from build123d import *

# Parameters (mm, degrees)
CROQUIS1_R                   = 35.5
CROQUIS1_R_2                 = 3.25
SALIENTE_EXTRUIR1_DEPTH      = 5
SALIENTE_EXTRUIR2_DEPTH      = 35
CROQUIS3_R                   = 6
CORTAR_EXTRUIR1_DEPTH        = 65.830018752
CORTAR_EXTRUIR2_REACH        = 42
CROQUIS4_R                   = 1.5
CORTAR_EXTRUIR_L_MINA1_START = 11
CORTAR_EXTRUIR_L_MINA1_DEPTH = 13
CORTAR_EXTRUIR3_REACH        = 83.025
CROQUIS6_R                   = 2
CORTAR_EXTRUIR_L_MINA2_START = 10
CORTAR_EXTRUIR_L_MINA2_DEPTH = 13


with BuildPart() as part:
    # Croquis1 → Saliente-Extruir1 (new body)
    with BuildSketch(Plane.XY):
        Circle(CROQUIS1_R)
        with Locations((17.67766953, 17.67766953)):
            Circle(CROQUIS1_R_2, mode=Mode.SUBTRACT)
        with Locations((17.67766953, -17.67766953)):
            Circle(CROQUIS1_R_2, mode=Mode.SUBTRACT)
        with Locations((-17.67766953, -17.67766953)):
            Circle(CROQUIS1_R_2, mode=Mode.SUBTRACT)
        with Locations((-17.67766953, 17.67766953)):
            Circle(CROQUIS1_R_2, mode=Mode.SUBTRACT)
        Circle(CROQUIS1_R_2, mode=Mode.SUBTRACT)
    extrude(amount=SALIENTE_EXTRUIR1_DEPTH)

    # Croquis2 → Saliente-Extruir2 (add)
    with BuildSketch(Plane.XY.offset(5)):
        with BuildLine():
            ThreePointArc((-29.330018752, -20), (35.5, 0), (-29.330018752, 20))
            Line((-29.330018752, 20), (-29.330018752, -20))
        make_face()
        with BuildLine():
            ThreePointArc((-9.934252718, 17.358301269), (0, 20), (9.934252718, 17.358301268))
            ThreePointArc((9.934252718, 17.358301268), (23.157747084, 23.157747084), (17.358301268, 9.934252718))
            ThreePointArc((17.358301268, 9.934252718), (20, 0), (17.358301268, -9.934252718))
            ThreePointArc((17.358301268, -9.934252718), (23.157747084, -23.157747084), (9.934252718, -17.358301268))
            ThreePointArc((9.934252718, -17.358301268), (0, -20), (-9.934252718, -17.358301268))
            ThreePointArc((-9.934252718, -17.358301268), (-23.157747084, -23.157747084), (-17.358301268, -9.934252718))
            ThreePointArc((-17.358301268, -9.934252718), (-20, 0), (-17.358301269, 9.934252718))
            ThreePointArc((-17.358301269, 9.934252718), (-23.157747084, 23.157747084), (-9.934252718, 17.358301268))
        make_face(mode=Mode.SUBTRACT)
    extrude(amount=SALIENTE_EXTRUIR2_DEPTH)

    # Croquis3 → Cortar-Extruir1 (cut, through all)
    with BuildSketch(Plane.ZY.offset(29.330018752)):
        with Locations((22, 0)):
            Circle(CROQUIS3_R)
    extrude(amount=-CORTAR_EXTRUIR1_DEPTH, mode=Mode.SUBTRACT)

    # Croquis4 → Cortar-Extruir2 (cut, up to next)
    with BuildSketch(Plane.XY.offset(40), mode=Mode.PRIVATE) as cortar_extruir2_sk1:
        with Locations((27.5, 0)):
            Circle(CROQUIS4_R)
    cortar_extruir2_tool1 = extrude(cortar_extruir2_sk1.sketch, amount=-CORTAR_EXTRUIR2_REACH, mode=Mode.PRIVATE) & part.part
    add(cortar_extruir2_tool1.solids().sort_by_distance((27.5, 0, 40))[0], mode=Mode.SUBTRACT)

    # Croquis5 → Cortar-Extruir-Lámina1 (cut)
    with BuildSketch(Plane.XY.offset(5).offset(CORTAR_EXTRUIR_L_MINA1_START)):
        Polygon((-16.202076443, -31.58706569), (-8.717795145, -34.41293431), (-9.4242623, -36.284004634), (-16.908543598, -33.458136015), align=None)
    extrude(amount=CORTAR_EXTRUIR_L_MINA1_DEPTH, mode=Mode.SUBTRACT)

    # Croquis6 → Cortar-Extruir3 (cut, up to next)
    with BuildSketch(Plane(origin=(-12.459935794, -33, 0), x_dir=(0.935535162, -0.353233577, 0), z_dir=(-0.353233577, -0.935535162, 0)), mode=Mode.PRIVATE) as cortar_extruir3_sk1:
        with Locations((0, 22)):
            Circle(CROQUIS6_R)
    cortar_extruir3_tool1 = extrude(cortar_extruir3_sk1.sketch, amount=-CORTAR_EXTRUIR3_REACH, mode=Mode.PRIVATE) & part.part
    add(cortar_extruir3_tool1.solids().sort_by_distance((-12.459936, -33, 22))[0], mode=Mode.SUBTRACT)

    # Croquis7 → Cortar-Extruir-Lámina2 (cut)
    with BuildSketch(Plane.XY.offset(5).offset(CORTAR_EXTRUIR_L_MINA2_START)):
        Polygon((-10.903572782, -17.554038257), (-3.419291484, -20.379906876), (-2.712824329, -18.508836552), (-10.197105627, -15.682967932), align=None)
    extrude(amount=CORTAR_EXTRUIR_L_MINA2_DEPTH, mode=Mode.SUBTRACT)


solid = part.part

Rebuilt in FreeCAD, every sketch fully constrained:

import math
import FreeCAD as App
import Part
import Sketcher
from FreeCAD import Vector
Q = App.Units.Quantity

doc = App.newDocument("Part")
params = doc.addObject("Spreadsheet::Sheet", "Params")
for row, (alias, value) in enumerate([
    ("sketch1_diameter", "71 mm"),
    ("sketch1_diameter2", "6.5 mm"),
    ("pad1_length", "5 mm"),
    ("sketch2_radius", "20 mm"),
    ("sketch2_radius2", "35.5 mm"),
    ("sketch2_height", "40 mm"),
    ("sketch2_radius3", "7.75 mm"),
    ("pad2_length", "35 mm"),
    ("sketch3_diameter", "12 mm"),
    ("sketch4_diameter", "3 mm"),
    ("sketch5_length", "8 mm"),
    ("sketch5_length2", "2 mm"),
    ("pocket3_length", "13 mm"),
    ("sketch6_diameter", "4 mm"),
    ("sketch7_length", "8 mm"),
    ("sketch7_length2", "2 mm"),
    ("pocket5_length", "13 mm"),
], start=1):
    params.set(f"A{row}", alias)
    params.set(f"B{row}", "=" + value)
    params.setAlias(f"B{row}", alias)

body = doc.addObject("PartDesign::Body", "Body")

# Sketch on XY plane
sketch1 = body.newObject("Sketcher::SketchObject", "Sketch")
sketch1.AttachmentSupport = (doc.getObject("XY_Plane"), [""])
sketch1.MapMode = "FlatFace"
sketch1.addGeometry([
    Part.Circle(Vector(0, 0, 0), Vector(0, 0, 1), 35.5),  # 0
    Part.Circle(Vector(-17.7, -17.7, 0), Vector(0, 0, 1), 3.2),  # 1
    Part.Circle(Vector(17.7, -17.7, 0), Vector(0, 0, 1), 3.2),  # 2
    Part.Circle(Vector(-17.7, 17.7, 0), Vector(0, 0, 1), 3.2),  # 3
    Part.Circle(Vector(0, 0, 0), Vector(0, 0, 1), 3.2),  # 4
    Part.Circle(Vector(17.7, 17.7, 0), Vector(0, 0, 1), 3.2),  # 5
], False)
sketch1.addConstraint([
    Sketcher.Constraint("Coincident", 0, 3, -1, 1),
    Sketcher.Constraint("Coincident", 4, 3, -1, 1),
    Sketcher.Constraint("Equal", 1, 2),
    Sketcher.Constraint("Equal", 2, 3),
    Sketcher.Constraint("Equal", 3, 4),
    Sketcher.Constraint("Equal", 4, 5),
    Sketcher.Constraint("Symmetric", 2, 3, 3, 3, -1, 1),
    Sketcher.Constraint("Symmetric", 1, 3, 5, 3, -1, 1),
    Sketcher.Constraint("Symmetric", 1, 3, 2, 3, -2),
    Sketcher.Constraint("Diameter", 0, Q("71 mm")),
    Sketcher.Constraint("Diameter", 1, Q("6.5 mm")),
    Sketcher.Constraint("DistanceX", 1, 3, -1, 1, Q("17.67767 mm")),
    Sketcher.Constraint("DistanceY", 1, 3, -1, 1, Q("17.67767 mm")),
])
sketch1.setExpression("Constraints[9]", "Params.sketch1_diameter")
sketch1.setExpression("Constraints[10]", "Params.sketch1_diameter2")
pad1 = body.newObject("PartDesign::Pad", "Pad")
pad1.Profile = sketch1
pad1.setExpression("Length", "Params.pad1_length")

# Sketch on XY plane
sketch2 = body.newObject("Sketcher::SketchObject", "Sketch001")
sketch2.AttachmentSupport = (doc.getObject("XY_Plane"), [""])
sketch2.MapMode = "FlatFace"
sketch2.AttachmentOffset = App.Placement(Vector(0, 0, 5), App.Rotation())
sketch2.addGeometry([
    Part.ArcOfCircle(Part.Circle(Vector(0, 0, 0), Vector(0, 0, 1), 36), math.radians(-146), math.radians(146)),  # 0
    Part.LineSegment(Vector(-29, 20, 0), Vector(-29, -20, 0)),  # 1
    Part.ArcOfCircle(Part.Circle(Vector(-18, 18, 0), Vector(0, 0, 1), 8), math.radians(-2), math.radians(272)),  # 2
    Part.ArcOfCircle(Part.Circle(Vector(0, 0, 0), Vector(0, 0, 1), 20), math.radians(60), math.radians(120)),  # 3
    Part.ArcOfCircle(Part.Circle(Vector(18, 18, 0), Vector(0, 0, 1), 8), math.radians(-92), math.radians(182)),  # 4
    Part.ArcOfCircle(Part.Circle(Vector(0, 0, 0), Vector(0, 0, 1), 20), math.radians(-30), math.radians(30)),  # 5
    Part.ArcOfCircle(Part.Circle(Vector(18, -18, 0), Vector(0, 0, 1), 8), math.radians(178), math.radians(452)),  # 6
    Part.ArcOfCircle(Part.Circle(Vector(0, 0, 0), Vector(0, 0, 1), 20), math.radians(-120), math.radians(-60)),  # 7
    Part.ArcOfCircle(Part.Circle(Vector(-18, -18, 0), Vector(0, 0, 1), 8), math.radians(88), math.radians(362)),  # 8
    Part.ArcOfCircle(Part.Circle(Vector(0, 0, 0), Vector(0, 0, 1), 20), math.radians(150), math.radians(210)),  # 9
], False)
sketch2.addConstraint([
    Sketcher.Constraint("Coincident", 0, 1, 1, 2),
    Sketcher.Constraint("Coincident", 1, 1, 0, 2),
    Sketcher.Constraint("Coincident", 2, 1, 3, 2),
    Sketcher.Constraint("Coincident", 3, 1, 4, 2),
    Sketcher.Constraint("Coincident", 4, 1, 5, 2),
    Sketcher.Constraint("Coincident", 5, 1, 6, 2),
    Sketcher.Constraint("Coincident", 6, 1, 7, 2),
    Sketcher.Constraint("Coincident", 7, 1, 8, 2),
    Sketcher.Constraint("Coincident", 8, 1, 9, 2),
    Sketcher.Constraint("Coincident", 9, 1, 2, 2),
    Sketcher.Constraint("Vertical", 1),
    Sketcher.Constraint("Coincident", 0, 3, -1, 1),
    Sketcher.Constraint("Coincident", 3, 3, -1, 1),
    Sketcher.Constraint("Coincident", 5, 3, -1, 1),
    Sketcher.Constraint("Coincident", 7, 3, -1, 1),
    Sketcher.Constraint("Coincident", 9, 3, -1, 1),
    Sketcher.Constraint("Equal", 2, 4),
    Sketcher.Constraint("Equal", 3, 5),
    Sketcher.Constraint("Equal", 4, 6),
    Sketcher.Constraint("Equal", 5, 7),
    Sketcher.Constraint("Equal", 6, 8),
    Sketcher.Constraint("Equal", 7, 9),
    Sketcher.Constraint("Symmetric", 2, 3, 6, 3, -1, 1),
    Sketcher.Constraint("Symmetric", 4, 3, 8, 3, -1, 1),
    Sketcher.Constraint("Symmetric", 2, 3, 4, 3, -2),
    Sketcher.Constraint("Radius", 3, Q("20 mm")),
    Sketcher.Constraint("Radius", 0, Q("35.5 mm")),
    Sketcher.Constraint("DistanceY", 1, 2, 1, 1, Q("40 mm")),
    Sketcher.Constraint("Radius", 2, Q("7.75 mm")),
    Sketcher.Constraint("DistanceY", -1, 1, 2, 1, Q("17.358301 mm")),
    Sketcher.Constraint("DistanceX", -1, 1, 4, 1, Q("17.358301 mm")),
])
sketch2.setExpression("Constraints[25]", "Params.sketch2_radius")
sketch2.setExpression("Constraints[26]", "Params.sketch2_radius2")
sketch2.setExpression("Constraints[27]", "Params.sketch2_height")
sketch2.setExpression("Constraints[28]", "Params.sketch2_radius3")
pad2 = body.newObject("PartDesign::Pad", "Pad001")
pad2.Profile = sketch2
pad2.setExpression("Length", "Params.pad2_length")

# Sketch on YZ plane
sketch3 = body.newObject("Sketcher::SketchObject", "Sketch002")
sketch3.AttachmentSupport = (doc.getObject("YZ_Plane"), [""])
sketch3.MapMode = "FlatFace"
sketch3.AttachmentOffset = App.Placement(Vector(0, 0, -29.330019), App.Rotation())
sketch3.addGeometry(Part.Circle(Vector(0, 22, 0), Vector(0, 0, 1), 6), False)
sketch3.addConstraint([
    Sketcher.Constraint("PointOnObject", 0, 3, -2),
    Sketcher.Constraint("Diameter", 0, Q("12 mm")),
    Sketcher.Constraint("DistanceY", -1, 1, 0, 3, Q("22 mm")),
])
sketch3.setExpression("Constraints[1]", "Params.sketch3_diameter")
pocket1 = body.newObject("PartDesign::Pocket", "Pocket")
pocket1.Profile = sketch3
pocket1.Type = "ThroughAll"
pocket1.Reversed = True

# Sketch on XY plane
sketch4 = body.newObject("Sketcher::SketchObject", "Sketch003")
sketch4.AttachmentSupport = (doc.getObject("XY_Plane"), [""])
sketch4.MapMode = "FlatFace"
sketch4.AttachmentOffset = App.Placement(Vector(0, 0, 40), App.Rotation())
sketch4.addGeometry(Part.Circle(Vector(27.5, 0, 0), Vector(0, 0, 1), 1.5), False)
sketch4.addConstraint([
    Sketcher.Constraint("PointOnObject", 0, 3, -1),
    Sketcher.Constraint("Diameter", 0, Q("3 mm")),
    Sketcher.Constraint("DistanceX", -1, 1, 0, 3, Q("27.5 mm")),
])
sketch4.setExpression("Constraints[1]", "Params.sketch4_diameter")
pocket2 = body.newObject("PartDesign::Pocket", "Pocket001")
pocket2.Profile = sketch4
pocket2.Type = "UpToFirst"

# Sketch on XY plane
sketch5 = body.newObject("Sketcher::SketchObject", "Sketch004")
sketch5.AttachmentSupport = (doc.getObject("XY_Plane"), [""])
sketch5.MapMode = "FlatFace"
sketch5.AttachmentOffset = App.Placement(Vector(0, 0, 16), App.Rotation())
sketch5.addGeometry([
    Part.LineSegment(Vector(-8.7, -34.4, 0), Vector(-16.2, -31.6, 0)),
    Part.LineSegment(Vector(-16.2, -31.6, 0), Vector(-16.9, -33.5, 0)),
    Part.LineSegment(Vector(-16.9, -33.5, 0), Vector(-9.4, -36.3, 0)),
    Part.LineSegment(Vector(-9.4, -36.3, 0), Vector(-8.7, -34.4, 0)),
], False)
sketch5.addConstraint([
    Sketcher.Constraint("Coincident", 0, 2, 1, 1),
    Sketcher.Constraint("Coincident", 1, 2, 2, 1),
    Sketcher.Constraint("Coincident", 2, 2, 3, 1),
    Sketcher.Constraint("Coincident", 3, 2, 0, 1),
    Sketcher.Constraint("Perpendicular", 0, 1),
    Sketcher.Constraint("Perpendicular", 1, 2),
    Sketcher.Constraint("Perpendicular", 2, 3),
    Sketcher.Constraint("Distance", 0, Q("8 mm")),
    Sketcher.Constraint("Distance", 1, Q("2 mm")),
    Sketcher.Constraint("DistanceY", 3, 2, 1, 2, Q("0.954798 mm")),
    Sketcher.Constraint("DistanceX", 0, 2, -1, 1, Q("16.202076 mm")),
    Sketcher.Constraint("DistanceY", 0, 2, -1, 1, Q("31.587066 mm")),
])
sketch5.setExpression("Constraints[7]", "Params.sketch5_length")
sketch5.setExpression("Constraints[8]", "Params.sketch5_length2")
pocket3 = body.newObject("PartDesign::Pocket", "Pocket002")
pocket3.Profile = sketch5
pocket3.setExpression("Length", "Params.pocket3_length")
pocket3.Reversed = True

# Sketch on an angled plane
sketch6 = body.newObject("Sketcher::SketchObject", "Sketch005")
sketch6.Placement = App.Placement(Vector(-12.459936, -33, 0), App.Rotation(Vector(0.935535162, -0.353233577, 0), Vector(0, 0, 0.999999999), Vector(-0.353233577, -0.935535162, 0), "ZXY"))
sketch6.addGeometry(Part.Circle(Vector(0, 22, 0), Vector(0, 0, 1), 2), False)
sketch6.addConstraint([
    Sketcher.Constraint("PointOnObject", 0, 3, -2),
    Sketcher.Constraint("Diameter", 0, Q("4 mm")),
    Sketcher.Constraint("DistanceY", -1, 1, 0, 3, Q("22 mm")),
])
sketch6.setExpression("Constraints[1]", "Params.sketch6_diameter")
pocket4 = body.newObject("PartDesign::Pocket", "Pocket003")
pocket4.Profile = sketch6
pocket4.Type = "UpToFirst"

# Sketch on XY plane
sketch7 = body.newObject("Sketcher::SketchObject", "Sketch006")
sketch7.AttachmentSupport = (doc.getObject("XY_Plane"), [""])
sketch7.MapMode = "FlatFace"
sketch7.AttachmentOffset = App.Placement(Vector(0, 0, 15), App.Rotation())
sketch7.addGeometry([
    Part.LineSegment(Vector(-10.9, -17.6, 0), Vector(-3.4, -20.4, 0)),
    Part.LineSegment(Vector(-3.4, -20.4, 0), Vector(-2.7, -18.5, 0)),
    Part.LineSegment(Vector(-2.7, -18.5, 0), Vector(-10.2, -15.7, 0)),
    Part.LineSegment(Vector(-10.2, -15.7, 0), Vector(-10.9, -17.6, 0)),
], False)
sketch7.addConstraint([
    Sketcher.Constraint("Coincident", 0, 2, 1, 1),
    Sketcher.Constraint("Coincident", 1, 2, 2, 1),
    Sketcher.Constraint("Coincident", 2, 2, 3, 1),
    Sketcher.Constraint("Coincident", 3, 2, 0, 1),
    Sketcher.Constraint("Perpendicular", 0, 1),
    Sketcher.Constraint("Perpendicular", 1, 2),
    Sketcher.Constraint("Perpendicular", 2, 3),
    Sketcher.Constraint("Distance", 0, Q("8 mm")),
    Sketcher.Constraint("Distance", 1, Q("2 mm")),
    Sketcher.Constraint("DistanceY", 1, 2, 3, 2, Q("0.954798 mm")),
    Sketcher.Constraint("DistanceX", 0, 2, -1, 1, Q("3.419291 mm")),
    Sketcher.Constraint("DistanceY", 3, 2, -1, 1, Q("17.554038 mm")),
])
sketch7.setExpression("Constraints[7]", "Params.sketch7_length")
sketch7.setExpression("Constraints[8]", "Params.sketch7_length2")
pocket5 = body.newObject("PartDesign::Pocket", "Pocket004")
pocket5.Profile = sketch7
pocket5.setExpression("Length", "Params.pocket5_length")
pocket5.Reversed = True

doc.recompute()
